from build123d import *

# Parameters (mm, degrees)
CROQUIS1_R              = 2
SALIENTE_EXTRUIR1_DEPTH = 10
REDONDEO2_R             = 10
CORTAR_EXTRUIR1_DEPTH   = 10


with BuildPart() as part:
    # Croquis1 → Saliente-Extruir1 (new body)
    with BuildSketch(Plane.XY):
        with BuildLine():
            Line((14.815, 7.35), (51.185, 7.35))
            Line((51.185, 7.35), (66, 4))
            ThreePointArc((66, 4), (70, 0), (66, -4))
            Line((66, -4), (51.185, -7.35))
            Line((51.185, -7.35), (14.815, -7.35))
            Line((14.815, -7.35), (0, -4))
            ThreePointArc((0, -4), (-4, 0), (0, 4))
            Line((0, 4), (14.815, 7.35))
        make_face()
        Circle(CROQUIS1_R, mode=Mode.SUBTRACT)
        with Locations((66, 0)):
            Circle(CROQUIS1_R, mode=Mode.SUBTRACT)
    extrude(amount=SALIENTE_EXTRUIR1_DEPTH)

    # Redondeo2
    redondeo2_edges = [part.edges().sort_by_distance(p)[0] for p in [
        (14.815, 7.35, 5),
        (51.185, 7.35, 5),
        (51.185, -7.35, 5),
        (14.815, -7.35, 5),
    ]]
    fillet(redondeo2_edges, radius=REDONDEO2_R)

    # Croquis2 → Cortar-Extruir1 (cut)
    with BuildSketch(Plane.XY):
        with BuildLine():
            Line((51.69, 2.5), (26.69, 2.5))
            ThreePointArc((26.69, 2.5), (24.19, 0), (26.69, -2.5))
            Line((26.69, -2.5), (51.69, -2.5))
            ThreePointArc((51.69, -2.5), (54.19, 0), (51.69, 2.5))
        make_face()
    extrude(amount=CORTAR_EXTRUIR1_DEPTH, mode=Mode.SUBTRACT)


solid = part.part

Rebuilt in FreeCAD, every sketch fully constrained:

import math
import FreeCAD as App
import Part
import Sketcher


def edges_at(feature, points):
    """Names of the edges that pass closest to the given points."""
    edges = feature.Shape.Edges
    near = lambda p: min(range(len(edges)), key=lambda i: edges[i].distToShape(Part.Vertex(*p))[0])
    return sorted({f"Edge{near(p) + 1}" for p in points})

doc = App.newDocument("Part")
body = doc.addObject("PartDesign::Body", "Body")

sketch1 = doc.addObject("Sketcher::SketchObject", "Sketch")
body.addObject(sketch1)
sketch1.AttachmentSupport = (doc.XY_Plane, [""])
sketch1.MapMode = "FlatFace"
sketch1.addGeometry(Part.LineSegment(App.Vector(51.2, 7.3, 0), App.Vector(14.8, 7.3, 0)), False)
sketch1.addGeometry(Part.LineSegment(App.Vector(14.8, 7.3, 0), App.Vector(0, 4, 0)), False)
sketch1.addGeometry(Part.ArcOfCircle(Part.Circle(App.Vector(0, 0, 0), App.Vector(0, 0, 1), 4), math.radians(90), math.radians(270)), False)
sketch1.addGeometry(Part.LineSegment(App.Vector(0, -4, 0), App.Vector(14.8, -7.3, 0)), False)
sketch1.addGeometry(Part.LineSegment(App.Vector(14.8, -7.3, 0), App.Vector(51.2, -7.3, 0)), False)
sketch1.addGeometry(Part.LineSegment(App.Vector(51.2, -7.3, 0), App.Vector(66, -4, 0)), False)
sketch1.addGeometry(Part.ArcOfCircle(Part.Circle(App.Vector(66, 0, 0), App.Vector(0, 0, 1), 4), math.radians(-90), math.radians(90)), False)
sketch1.addGeometry(Part.LineSegment(App.Vector(66, 4, 0), App.Vector(51.2, 7.3, 0)), False)
sketch1.addGeometry(Part.Circle(App.Vector(66, 0, 0), App.Vector(0, 0, 1), 2), False)
sketch1.addGeometry(Part.Circle(App.Vector(0, 0, 0), App.Vector(0, 0, 1), 2), False)
sketch1.addConstraint(Sketcher.Constraint("Coincident", 0, 2, 1, 1))
sketch1.addConstraint(Sketcher.Constraint("Coincident", 1, 2, 2, 1))
sketch1.addConstraint(Sketcher.Constraint("Coincident", 2, 2, 3, 1))
sketch1.addConstraint(Sketcher.Constraint("Coincident", 3, 2, 4, 1))
sketch1.addConstraint(Sketcher.Constraint("Coincident", 4, 2, 5, 1))
sketch1.addConstraint(Sketcher.Constraint("Coincident", 5, 2, 6, 1))
sketch1.addConstraint(Sketcher.Constraint("Coincident", 6, 2, 7, 1))
sketch1.addConstraint(Sketcher.Constraint("Coincident", 7, 2, 0, 1))
sketch1.addConstraint(Sketcher.Constraint("Horizontal", 0))
sketch1.addConstraint(Sketcher.Constraint("Horizontal", 4))
sketch1.addConstraint(Sketcher.Constraint("Coincident", 2, 3, -1, 1))
sketch1.addConstraint(Sketcher.Constraint("Coincident", 9, 3, -1, 1))
sketch1.addConstraint(Sketcher.Constraint("Coincident", 8, 3, 6, 3))
sketch1.addConstraint(Sketcher.Constraint("Equal", 2, 6))
sketch1.addConstraint(Sketcher.Constraint("Equal", 8, 9))
sketch1.addConstraint(Sketcher.Constraint("Symmetric", 0, 2, 3, 2, -1))
sketch1.addConstraint(Sketcher.Constraint("Symmetric", 5, 2, 6, 2, -1))
sketch1.addConstraint(Sketcher.Constraint("PointOnObject", 1, 2, -2))
sketch1.addConstraint(Sketcher.Constraint("PointOnObject", 2, 2, -2))
sketch1.addConstraint(Sketcher.Constraint("Parallel", 1, 5))
sketch1.addConstraint(Sketcher.Constraint("Parallel", 3, 7))
sketch1.addConstraint(Sketcher.Constraint("Vertical", 8, 3, 5, 2))
sketch1.addConstraint(Sketcher.Constraint("Diameter", 8, 4.0))
sketch1.addConstraint(Sketcher.Constraint("Radius", 2, 4.0))
sketch1.addConstraint(Sketcher.Constraint("DistanceX", -1, 1, 6, 3, 66.0))
sketch1.addConstraint(Sketcher.Constraint("DistanceX", 0, 2, 0, 1, 36.37))
sketch1.addConstraint(Sketcher.Constraint("DistanceY", 3, 2, 0, 2, 14.7))
pad1 = doc.addObject("PartDesign::Pad", "Pad")
body.addObject(pad1)
pad1.Profile = sketch1
pad1.Length = 10
doc.recompute()

fillet = doc.addObject("PartDesign::Fillet", "Fillet")
body.addObject(fillet)
fillet.Base = (pad1, edges_at(pad1, [
    (14.815, 7.35, 5),
    (51.185, 7.35, 5),
    (51.185, -7.35, 5),
    (14.815, -7.35, 5),
]))
fillet.Radius = 10

sketch2 = doc.addObject("Sketcher::SketchObject", "Sketch001")
body.addObject(sketch2)
sketch2.AttachmentSupport = (doc.XY_Plane, [""])
sketch2.MapMode = "FlatFace"
sketch2.addGeometry(Part.LineSegment(App.Vector(51.7, 2.5, 0), App.Vector(26.7, 2.5, 0)), False)
sketch2.addGeometry(Part.ArcOfCircle(Part.Circle(App.Vector(26.7, 0, 0), App.Vector(0, 0, 1), 2.5), math.radians(90), math.radians(270)), False)
sketch2.addGeometry(Part.LineSegment(App.Vector(26.7, -2.5, 0), App.Vector(51.7, -2.5, 0)), False)
sketch2.addGeometry(Part.ArcOfCircle(Part.Circle(App.Vector(51.7, 0, 0), App.Vector(0, 0, 1), 2.5), math.radians(-90), math.radians(90)), False)
sketch2.addConstraint(Sketcher.Constraint("Tangent", 0, 2, 1, 1))
sketch2.addConstraint(Sketcher.Constraint("Tangent", 1, 2, 2, 1))
sketch2.addConstraint(Sketcher.Constraint("Tangent", 2, 2, 3, 1))
sketch2.addConstraint(Sketcher.Constraint("Tangent", 3, 2, 0, 1))
sketch2.addConstraint(Sketcher.Constraint("Horizontal", 0))
sketch2.addConstraint(Sketcher.Constraint("Horizontal", 2))
sketch2.addConstraint(Sketcher.Constraint("PointOnObject", 1, 3, -1))
sketch2.addConstraint(Sketcher.Constraint("Radius", 1, 2.5))
sketch2.addConstraint(Sketcher.Constraint("DistanceX", 0, 2, 0, 1, 25.0))
sketch2.addConstraint(Sketcher.Constraint("DistanceX", -1, 1, 1, 3, 26.69))
pocket1 = doc.addObject("PartDesign::Pocket", "Pocket")
body.addObject(pocket1)
pocket1.Profile = sketch2
pocket1.Length = 10
pocket1.Reversed = True

doc.recompute()
